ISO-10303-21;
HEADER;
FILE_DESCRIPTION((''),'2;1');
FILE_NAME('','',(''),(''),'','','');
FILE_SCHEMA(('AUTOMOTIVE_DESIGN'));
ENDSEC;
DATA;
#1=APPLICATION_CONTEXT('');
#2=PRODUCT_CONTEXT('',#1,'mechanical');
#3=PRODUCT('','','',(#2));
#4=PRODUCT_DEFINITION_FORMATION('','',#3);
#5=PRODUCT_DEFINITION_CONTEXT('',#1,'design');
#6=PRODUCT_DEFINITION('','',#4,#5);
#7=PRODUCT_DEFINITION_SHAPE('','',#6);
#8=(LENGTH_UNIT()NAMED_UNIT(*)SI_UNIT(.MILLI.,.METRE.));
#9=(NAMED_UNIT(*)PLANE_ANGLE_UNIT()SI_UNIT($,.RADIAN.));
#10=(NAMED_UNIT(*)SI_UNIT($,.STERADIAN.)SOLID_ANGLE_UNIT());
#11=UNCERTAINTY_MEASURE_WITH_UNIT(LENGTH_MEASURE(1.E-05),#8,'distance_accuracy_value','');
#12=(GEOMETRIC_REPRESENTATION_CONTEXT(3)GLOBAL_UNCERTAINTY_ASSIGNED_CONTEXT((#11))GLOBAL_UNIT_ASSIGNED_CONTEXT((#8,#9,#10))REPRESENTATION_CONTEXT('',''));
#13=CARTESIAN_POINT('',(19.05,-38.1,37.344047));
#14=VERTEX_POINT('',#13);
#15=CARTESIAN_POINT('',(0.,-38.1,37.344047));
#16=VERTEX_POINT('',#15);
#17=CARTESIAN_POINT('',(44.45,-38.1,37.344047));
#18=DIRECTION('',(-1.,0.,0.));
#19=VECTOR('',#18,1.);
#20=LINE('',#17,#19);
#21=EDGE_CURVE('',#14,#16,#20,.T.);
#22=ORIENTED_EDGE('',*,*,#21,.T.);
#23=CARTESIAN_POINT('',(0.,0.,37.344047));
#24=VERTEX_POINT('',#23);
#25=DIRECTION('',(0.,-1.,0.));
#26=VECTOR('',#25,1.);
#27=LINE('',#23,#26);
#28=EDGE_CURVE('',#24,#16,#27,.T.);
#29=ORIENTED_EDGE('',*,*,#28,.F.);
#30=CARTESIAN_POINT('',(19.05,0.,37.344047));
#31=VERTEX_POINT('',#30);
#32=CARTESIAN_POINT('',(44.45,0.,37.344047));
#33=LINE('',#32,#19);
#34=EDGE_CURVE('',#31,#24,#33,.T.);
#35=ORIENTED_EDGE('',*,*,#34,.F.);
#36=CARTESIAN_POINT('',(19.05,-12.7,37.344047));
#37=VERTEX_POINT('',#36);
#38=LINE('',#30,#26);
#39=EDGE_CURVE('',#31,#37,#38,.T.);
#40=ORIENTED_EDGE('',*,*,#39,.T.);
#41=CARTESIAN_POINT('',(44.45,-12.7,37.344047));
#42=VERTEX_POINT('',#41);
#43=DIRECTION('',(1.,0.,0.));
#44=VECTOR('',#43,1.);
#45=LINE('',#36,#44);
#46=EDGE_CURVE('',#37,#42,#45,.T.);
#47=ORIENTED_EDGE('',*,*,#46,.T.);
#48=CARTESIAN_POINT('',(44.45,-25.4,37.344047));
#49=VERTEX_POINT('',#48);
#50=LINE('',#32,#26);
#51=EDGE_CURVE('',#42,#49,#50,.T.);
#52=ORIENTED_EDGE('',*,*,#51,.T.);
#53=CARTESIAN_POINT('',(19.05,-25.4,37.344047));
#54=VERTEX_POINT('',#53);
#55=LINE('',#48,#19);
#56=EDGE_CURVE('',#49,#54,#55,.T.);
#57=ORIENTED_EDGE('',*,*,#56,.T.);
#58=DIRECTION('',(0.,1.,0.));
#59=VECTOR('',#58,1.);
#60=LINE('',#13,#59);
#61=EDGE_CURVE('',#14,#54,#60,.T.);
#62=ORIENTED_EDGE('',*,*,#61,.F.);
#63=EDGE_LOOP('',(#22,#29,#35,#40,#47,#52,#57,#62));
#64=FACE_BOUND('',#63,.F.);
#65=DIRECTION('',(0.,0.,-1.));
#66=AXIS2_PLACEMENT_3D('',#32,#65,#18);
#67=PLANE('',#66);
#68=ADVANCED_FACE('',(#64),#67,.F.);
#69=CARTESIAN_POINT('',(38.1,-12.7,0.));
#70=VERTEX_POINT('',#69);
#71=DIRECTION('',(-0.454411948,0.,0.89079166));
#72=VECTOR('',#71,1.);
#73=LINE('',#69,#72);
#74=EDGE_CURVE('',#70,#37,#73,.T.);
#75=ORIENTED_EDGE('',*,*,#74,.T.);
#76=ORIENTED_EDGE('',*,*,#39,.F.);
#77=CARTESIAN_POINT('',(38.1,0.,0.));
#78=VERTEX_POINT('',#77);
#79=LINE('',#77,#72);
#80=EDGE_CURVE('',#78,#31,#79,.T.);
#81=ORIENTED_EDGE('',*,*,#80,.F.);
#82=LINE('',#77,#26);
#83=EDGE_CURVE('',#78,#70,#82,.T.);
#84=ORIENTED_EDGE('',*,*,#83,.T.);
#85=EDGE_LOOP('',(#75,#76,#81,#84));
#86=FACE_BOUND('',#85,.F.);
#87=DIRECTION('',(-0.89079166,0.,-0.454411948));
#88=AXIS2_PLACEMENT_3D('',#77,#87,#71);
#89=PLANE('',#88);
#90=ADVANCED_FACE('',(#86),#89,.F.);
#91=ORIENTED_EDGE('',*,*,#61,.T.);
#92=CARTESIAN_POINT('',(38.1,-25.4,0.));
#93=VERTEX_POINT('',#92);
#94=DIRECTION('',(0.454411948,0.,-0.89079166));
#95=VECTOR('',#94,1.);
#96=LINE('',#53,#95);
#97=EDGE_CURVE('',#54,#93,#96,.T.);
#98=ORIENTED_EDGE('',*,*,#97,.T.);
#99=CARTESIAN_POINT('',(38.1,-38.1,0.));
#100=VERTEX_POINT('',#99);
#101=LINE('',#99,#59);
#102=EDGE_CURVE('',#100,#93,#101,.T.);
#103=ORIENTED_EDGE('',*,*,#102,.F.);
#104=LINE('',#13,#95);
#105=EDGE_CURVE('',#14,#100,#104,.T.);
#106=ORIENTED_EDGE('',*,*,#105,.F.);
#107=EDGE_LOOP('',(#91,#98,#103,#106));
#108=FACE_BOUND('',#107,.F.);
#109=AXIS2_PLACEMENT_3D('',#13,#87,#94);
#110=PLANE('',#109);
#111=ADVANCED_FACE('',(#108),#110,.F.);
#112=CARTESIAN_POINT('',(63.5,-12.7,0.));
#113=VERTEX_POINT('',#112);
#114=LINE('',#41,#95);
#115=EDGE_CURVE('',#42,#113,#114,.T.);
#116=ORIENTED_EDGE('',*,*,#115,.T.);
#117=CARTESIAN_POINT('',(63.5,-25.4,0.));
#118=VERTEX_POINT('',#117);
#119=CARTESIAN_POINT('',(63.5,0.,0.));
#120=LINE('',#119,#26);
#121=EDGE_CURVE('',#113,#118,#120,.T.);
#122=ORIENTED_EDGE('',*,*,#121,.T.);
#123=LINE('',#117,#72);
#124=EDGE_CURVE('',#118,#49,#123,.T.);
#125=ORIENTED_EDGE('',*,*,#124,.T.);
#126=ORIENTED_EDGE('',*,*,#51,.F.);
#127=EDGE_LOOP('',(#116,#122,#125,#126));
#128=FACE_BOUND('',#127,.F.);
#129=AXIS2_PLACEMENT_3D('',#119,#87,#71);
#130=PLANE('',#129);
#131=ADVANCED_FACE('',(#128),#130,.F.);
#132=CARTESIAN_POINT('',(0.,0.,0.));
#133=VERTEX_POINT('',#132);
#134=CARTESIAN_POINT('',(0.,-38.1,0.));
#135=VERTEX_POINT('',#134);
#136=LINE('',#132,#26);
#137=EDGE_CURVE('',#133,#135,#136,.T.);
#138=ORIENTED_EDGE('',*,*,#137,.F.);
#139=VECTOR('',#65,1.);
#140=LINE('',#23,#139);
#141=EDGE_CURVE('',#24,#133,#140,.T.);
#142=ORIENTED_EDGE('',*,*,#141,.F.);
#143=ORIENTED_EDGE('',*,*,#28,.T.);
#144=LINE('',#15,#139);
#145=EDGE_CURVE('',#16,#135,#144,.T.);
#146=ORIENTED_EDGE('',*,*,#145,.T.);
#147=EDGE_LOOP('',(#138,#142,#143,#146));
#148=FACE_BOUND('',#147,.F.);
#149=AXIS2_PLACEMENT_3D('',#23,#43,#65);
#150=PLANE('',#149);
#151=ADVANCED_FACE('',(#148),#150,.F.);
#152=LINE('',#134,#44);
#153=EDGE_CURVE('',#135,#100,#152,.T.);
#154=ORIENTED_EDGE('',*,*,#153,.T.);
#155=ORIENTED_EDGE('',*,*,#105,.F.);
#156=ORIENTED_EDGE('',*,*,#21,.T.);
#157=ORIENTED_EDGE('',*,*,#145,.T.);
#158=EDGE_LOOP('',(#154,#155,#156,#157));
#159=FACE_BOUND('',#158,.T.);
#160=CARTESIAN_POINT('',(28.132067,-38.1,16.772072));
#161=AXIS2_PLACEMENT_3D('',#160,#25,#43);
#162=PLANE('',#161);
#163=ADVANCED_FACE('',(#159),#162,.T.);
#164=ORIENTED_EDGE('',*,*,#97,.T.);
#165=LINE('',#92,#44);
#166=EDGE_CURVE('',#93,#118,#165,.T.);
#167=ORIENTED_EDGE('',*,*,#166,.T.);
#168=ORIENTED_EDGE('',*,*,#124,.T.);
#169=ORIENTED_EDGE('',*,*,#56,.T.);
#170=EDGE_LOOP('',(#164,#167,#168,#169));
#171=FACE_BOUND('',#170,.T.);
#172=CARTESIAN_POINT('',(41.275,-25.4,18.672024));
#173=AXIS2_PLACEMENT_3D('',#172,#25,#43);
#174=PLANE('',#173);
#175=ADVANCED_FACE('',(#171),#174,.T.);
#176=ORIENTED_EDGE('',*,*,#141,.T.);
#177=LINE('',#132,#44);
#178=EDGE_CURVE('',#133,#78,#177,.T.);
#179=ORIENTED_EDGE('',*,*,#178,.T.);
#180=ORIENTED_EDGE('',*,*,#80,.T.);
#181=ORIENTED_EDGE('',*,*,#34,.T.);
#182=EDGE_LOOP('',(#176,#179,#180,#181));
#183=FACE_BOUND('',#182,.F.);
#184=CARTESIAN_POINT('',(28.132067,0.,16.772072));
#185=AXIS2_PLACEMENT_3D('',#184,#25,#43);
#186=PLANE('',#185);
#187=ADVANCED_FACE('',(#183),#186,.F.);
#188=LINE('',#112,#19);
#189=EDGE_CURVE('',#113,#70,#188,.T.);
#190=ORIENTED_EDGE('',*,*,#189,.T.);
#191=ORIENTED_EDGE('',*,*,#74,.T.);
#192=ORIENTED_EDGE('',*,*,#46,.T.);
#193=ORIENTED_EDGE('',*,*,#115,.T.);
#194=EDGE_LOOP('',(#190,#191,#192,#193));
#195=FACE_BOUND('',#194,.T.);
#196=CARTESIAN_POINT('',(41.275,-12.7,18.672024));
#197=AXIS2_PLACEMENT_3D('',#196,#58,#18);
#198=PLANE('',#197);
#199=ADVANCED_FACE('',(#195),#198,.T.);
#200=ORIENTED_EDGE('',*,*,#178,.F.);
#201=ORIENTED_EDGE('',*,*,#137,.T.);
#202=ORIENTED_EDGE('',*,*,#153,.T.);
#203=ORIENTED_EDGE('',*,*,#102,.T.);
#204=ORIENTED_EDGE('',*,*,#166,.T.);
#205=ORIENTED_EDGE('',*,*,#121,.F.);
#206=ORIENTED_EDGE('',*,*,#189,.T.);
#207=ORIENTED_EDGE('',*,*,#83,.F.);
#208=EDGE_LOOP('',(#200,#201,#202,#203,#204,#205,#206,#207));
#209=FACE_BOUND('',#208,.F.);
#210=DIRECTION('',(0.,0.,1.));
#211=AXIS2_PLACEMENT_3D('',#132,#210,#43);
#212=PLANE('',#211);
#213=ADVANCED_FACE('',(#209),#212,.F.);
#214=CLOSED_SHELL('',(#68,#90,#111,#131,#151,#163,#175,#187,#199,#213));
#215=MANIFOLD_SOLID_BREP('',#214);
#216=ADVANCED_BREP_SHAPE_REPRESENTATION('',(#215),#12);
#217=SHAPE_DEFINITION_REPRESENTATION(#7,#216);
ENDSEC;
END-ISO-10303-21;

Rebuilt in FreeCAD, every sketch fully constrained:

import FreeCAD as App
import Part
import Sketcher

V = App.Vector
Q = App.Units.Quantity


def add_polygon(sketch, points):
    """Adds a closed chain of lines whose ends are joined by coincident constraints."""
    first, n = sketch.GeometryCount, len(points)
    for a, b in zip(points, points[1:] + points[:1]):
        sketch.addGeometry(Part.LineSegment(App.Vector(*a, 0), App.Vector(*b, 0)), False)
    for i in range(n):
        sketch.addConstraint(Sketcher.Constraint("Coincident", first + i, 2, first + (i + 1) % n, 1))

doc = App.newDocument("Part")
params = doc.addObject("Spreadsheet::Sheet", "Params")
for row, (alias, value) in enumerate([
    ("sketch1_width", "2.5 in"),
    ("sketch1_width2", "1.75 in"),
    ("pad1_length", "1.5 in"),
    ("sketch2_width", "1 in"),
    ("pocket1_length", "0.5 in"),
    ("sketch3_width", "1 in"),
    ("pocket2_length", "0.5 in"),
], start=1):
    params.set(f"A{row}", alias)
    params.set(f"B{row}", "=" + value)
    params.setAlias(f"B{row}", alias)

body = doc.addObject("PartDesign::Body", "Body")

sketch1 = doc.addObject("Sketcher::SketchObject", "Sketch")
body.addObject(sketch1)
sketch1.AttachmentSupport = (doc.XZ_Plane, [""])
sketch1.MapMode = "FlatFace"
add_polygon(sketch1, [(0, 37), (0, 0), (64, 0), (44, 37)])
sketch1.addConstraint([
    Sketcher.Constraint("Vertical", 0),
    Sketcher.Constraint("Horizontal", 1),
    Sketcher.Constraint("Horizontal", 3),
    Sketcher.Constraint("Coincident", 0, 2, -1, 1),
    Sketcher.Constraint("DistanceX", 1, 1, 1, 2, Q("2.5 in")),
    Sketcher.Constraint("DistanceX", 3, 2, 3, 1, Q("1.75 in")),
    Sketcher.Constraint("DistanceY", 0, 2, 0, 1, Q("37.344047 mm")),
])
sketch1.setExpression("Constraints[8]", "Params.sketch1_width")
sketch1.setExpression("Constraints[9]", "Params.sketch1_width2")
pad1 = doc.addObject("PartDesign::Pad", "Pad")
body.addObject(pad1)
pad1.Profile = sketch1
pad1.setExpression("Length", "Params.pad1_length")

sketch2 = doc.addObject("Sketcher::SketchObject", "Sketch001")
body.addObject(sketch2)
sketch2.AttachmentSupport = (doc.XZ_Plane, [""])
sketch2.MapMode = "FlatFace"
sketch2.AttachmentOffset = App.Placement(V(0, 0, 1.5 * 25.4), App.Rotation())
add_polygon(sketch2, [(44, 37), (19, 37), (38, 0), (64, 0)])
sketch2.addConstraint([
    Sketcher.Constraint("Horizontal", 0),
    Sketcher.Constraint("Horizontal", 2),
    Sketcher.Constraint("PointOnObject", 1, 2, -1),
    Sketcher.Constraint("Parallel", 1, 3),
    Sketcher.Constraint("DistanceX", 0, 2, 0, 1, Q("1 in")),
    Sketcher.Constraint("DistanceX", -1, 1, 1, 2, Q("1.5 in")),
    Sketcher.Constraint("DistanceX", -1, 1, 0, 2, Q("0.75 in")),
    Sketcher.Constraint("Distance", 1, Q("41.922313 mm")),
])
sketch2.setExpression("Constraints[8]", "Params.sketch2_width")
pocket1 = doc.addObject("PartDesign::Pocket", "Pocket")
body.addObject(pocket1)
pocket1.Profile = sketch2
pocket1.setExpression("Length", "Params.pocket1_length")

sketch3 = doc.addObject("Sketcher::SketchObject", "Sketch002")
body.addObject(sketch3)
sketch3.AttachmentSupport = (doc.XZ_Plane, [""])
sketch3.MapMode = "FlatFace"
add_polygon(sketch3, [(38, 0), (19, 37), (44, 37), (64, 0)])
sketch3.addConstraint([
    Sketcher.Constraint("Horizontal", 1),
    Sketcher.Constraint("Horizontal", 3),
    Sketcher.Constraint("PointOnObject", 2, 2, -1),
    Sketcher.Constraint("Parallel", 0, 2),
    Sketcher.Constraint("DistanceX", 1, 1, 1, 2, Q("1 in")),
    Sketcher.Constraint("DistanceX", -1, 1, 2, 2, Q("2.5 in")),
    Sketcher.Constraint("DistanceX", -1, 1, 0, 2, Q("0.75 in")),
    Sketcher.Constraint("Distance", 0, Q("41.922313 mm")),
])
sketch3.setExpression("Constraints[8]", "Params.sketch3_width")
pocket2 = doc.addObject("PartDesign::Pocket", "Pocket001")
body.addObject(pocket2)
pocket2.Profile = sketch3
pocket2.setExpression("Length", "Params.pocket2_length")
pocket2.Reversed = True

doc.recompute()
